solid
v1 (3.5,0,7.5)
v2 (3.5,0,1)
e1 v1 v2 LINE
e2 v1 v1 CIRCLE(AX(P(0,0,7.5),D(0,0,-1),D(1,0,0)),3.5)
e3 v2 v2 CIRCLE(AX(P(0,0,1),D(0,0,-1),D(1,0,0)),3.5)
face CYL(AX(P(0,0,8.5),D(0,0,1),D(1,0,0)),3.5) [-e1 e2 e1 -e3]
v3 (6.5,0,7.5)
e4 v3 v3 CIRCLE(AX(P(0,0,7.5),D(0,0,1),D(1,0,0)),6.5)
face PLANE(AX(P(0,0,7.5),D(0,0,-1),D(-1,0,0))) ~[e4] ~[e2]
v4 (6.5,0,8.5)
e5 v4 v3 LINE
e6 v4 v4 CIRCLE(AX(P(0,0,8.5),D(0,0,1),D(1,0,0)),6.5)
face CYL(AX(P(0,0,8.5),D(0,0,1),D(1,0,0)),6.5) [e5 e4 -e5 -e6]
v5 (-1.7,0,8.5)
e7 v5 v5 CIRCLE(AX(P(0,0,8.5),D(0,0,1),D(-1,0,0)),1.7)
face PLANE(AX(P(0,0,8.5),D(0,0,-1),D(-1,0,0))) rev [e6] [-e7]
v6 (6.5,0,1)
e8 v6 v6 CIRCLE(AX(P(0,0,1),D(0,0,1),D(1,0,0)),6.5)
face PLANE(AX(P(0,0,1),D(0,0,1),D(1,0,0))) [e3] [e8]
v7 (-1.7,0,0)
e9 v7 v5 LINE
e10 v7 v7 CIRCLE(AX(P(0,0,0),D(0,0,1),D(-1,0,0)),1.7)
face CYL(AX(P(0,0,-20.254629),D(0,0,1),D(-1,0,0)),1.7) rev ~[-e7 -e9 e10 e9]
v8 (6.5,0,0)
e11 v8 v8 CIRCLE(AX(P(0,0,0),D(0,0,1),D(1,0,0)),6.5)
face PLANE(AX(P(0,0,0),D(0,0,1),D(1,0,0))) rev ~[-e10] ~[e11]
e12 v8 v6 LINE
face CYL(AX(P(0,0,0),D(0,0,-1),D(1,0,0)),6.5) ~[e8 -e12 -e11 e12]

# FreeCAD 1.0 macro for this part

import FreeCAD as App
import Part
import Sketcher

V = App.Vector

doc = App.newDocument("Part")
body = doc.addObject("PartDesign::Body", "Body")

# Sketch on XY plane
sketch1 = doc.addObject("Sketcher::SketchObject", "Sketch")
body.addObject(sketch1)
sketch1.AttachmentSupport = (doc.XY_Plane, [""])
sketch1.MapMode = "FlatFace"
sketch1.addGeometry(Part.Circle(V(0, 0, 0), V(0, 0, 1), 6.5), False)
sketch1.addConstraint(Sketcher.Constraint("Coincident", 0, 3, -1, 1))
sketch1.addConstraint(Sketcher.Constraint("Diameter", 0, 13.0))
pad1 = doc.addObject("PartDesign::Pad", "Pad")
body.addObject(pad1)
pad1.Profile = sketch1
pad1.Length = 1

# Sketch on XY plane
sketch2 = doc.addObject("Sketcher::SketchObject", "Sketch001")
body.addObject(sketch2)
sketch2.AttachmentSupport = (doc.XY_Plane, [""])
sketch2.MapMode = "FlatFace"
sketch2.addGeometry(Part.Circle(V(0, 0, 0), V(0, 0, 1), 3.5), False)
sketch2.addConstraint(Sketcher.Constraint("Coincident", 0, 3, -1, 1))
sketch2.addConstraint(Sketcher.Constraint("Diameter", 0, 7.0))
pad2 = doc.addObject("PartDesign::Pad", "Pad001")
body.addObject(pad2)
pad2.Profile = sketch2
pad2.Length = 4.25
body2 = doc.addObject("PartDesign::Body", "Body001")
doc.recompute()

body2.BaseFeature = body
doc.recompute()

mirroring = doc.addObject("Part::Mirroring", "Mirroring")
mirroring.Source = body
mirroring.Base = V(0, 0, 4.25)
mirroring.Normal = V(0, 0, 1)
body3 = doc.addObject("PartDesign::Body", "Body002")
body3.BaseFeature = mirroring
boolean = doc.addObject("PartDesign::Boolean", "Boolean")
body2.addObject(boolean)
boolean.Type = "Fuse"
boolean.addObjects([body3])
doc.recompute()

# Sketch on XY plane
sketch3 = doc.addObject("Sketcher::SketchObject", "Sketch002")
body2.addObject(sketch3)
sketch3.AttachmentSupport = (doc.getObject("XY_Plane001"), [""])
sketch3.MapMode = "FlatFace"
sketch3.addGeometry(Part.Circle(V(0, 0, 0), V(0, 0, 1), 1.7), False)
sketch3.addConstraint(Sketcher.Constraint("Coincident", 0, 3, -1, 1))
sketch3.addConstraint(Sketcher.Constraint("Diameter", 0, 3.4))
doc.recompute()
hole = doc.addObject("PartDesign::Hole", "Hole")
body2.addObject(hole)
hole.Profile = sketch3
hole.ThreadType = "None"
hole.Diameter = 3.4
hole.DepthType = "ThroughAll"
hole.Reversed = True
mirroring.Visibility = False

doc.recompute()
